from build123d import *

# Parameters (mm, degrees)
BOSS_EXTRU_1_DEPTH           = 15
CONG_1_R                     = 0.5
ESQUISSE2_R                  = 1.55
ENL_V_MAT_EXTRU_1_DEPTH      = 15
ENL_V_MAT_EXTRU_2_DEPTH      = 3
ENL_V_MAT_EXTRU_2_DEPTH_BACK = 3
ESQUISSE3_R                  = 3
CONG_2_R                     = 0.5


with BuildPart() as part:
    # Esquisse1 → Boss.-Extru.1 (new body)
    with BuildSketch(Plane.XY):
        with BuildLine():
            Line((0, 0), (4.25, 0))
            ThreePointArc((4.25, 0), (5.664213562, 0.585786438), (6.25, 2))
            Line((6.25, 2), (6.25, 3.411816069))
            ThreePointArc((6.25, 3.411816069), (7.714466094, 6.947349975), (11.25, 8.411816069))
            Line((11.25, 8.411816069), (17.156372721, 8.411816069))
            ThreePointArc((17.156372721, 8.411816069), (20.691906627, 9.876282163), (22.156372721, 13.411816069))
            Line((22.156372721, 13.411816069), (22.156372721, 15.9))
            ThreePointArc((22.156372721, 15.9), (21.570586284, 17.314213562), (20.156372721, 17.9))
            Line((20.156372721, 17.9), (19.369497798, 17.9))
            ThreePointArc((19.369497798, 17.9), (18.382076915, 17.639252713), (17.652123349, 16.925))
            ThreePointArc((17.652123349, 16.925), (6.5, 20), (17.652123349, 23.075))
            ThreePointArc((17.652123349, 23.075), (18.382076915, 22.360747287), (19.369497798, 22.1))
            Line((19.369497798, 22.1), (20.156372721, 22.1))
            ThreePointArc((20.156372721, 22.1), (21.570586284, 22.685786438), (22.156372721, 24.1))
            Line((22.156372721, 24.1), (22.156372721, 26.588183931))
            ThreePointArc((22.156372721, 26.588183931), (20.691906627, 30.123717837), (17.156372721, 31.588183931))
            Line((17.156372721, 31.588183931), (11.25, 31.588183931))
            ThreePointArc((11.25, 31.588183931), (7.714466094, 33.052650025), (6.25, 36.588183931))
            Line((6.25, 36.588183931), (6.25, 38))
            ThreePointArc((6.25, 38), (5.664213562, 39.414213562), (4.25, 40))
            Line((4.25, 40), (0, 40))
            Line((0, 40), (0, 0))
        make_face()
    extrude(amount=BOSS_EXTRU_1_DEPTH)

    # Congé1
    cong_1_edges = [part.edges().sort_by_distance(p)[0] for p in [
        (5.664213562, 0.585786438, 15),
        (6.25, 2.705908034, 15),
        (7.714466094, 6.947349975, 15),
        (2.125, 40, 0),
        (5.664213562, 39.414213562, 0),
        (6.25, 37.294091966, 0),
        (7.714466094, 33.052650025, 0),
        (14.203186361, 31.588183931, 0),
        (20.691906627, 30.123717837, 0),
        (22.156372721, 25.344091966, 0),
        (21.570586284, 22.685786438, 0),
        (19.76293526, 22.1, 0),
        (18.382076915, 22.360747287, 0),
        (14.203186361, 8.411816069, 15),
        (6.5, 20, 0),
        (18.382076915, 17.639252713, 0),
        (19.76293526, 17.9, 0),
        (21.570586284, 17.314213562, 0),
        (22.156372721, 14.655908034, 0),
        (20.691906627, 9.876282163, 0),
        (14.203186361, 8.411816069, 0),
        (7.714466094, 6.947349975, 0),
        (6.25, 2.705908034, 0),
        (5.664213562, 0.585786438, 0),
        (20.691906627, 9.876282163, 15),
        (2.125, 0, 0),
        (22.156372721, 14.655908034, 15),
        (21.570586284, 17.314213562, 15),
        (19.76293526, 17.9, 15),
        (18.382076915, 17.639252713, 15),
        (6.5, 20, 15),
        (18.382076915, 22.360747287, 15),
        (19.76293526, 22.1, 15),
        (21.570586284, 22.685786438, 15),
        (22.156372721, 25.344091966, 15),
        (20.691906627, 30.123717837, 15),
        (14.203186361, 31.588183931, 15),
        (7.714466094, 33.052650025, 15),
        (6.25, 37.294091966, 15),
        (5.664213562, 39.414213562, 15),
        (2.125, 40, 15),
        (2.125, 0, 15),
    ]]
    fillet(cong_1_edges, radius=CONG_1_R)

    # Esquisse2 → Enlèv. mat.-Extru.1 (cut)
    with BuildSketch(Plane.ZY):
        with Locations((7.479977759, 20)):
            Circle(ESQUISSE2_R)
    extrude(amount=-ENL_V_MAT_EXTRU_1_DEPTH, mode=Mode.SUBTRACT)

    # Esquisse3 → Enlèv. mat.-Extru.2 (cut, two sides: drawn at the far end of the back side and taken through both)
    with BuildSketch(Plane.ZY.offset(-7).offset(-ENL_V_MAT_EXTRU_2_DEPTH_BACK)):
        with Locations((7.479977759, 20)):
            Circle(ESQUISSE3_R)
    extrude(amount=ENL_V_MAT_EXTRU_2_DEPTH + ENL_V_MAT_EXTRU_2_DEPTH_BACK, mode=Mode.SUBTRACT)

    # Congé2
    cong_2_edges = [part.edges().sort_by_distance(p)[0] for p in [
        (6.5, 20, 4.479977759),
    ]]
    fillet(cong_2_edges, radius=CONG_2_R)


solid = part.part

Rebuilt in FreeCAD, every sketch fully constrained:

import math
import FreeCAD as App
import Part
import Sketcher
from FreeCAD import Vector
Q = App.Units.Quantity


def edges_at(feature, points):
    """Names of the edges that pass closest to the given points."""
    edges = feature.Shape.Edges
    near = lambda p: min(range(len(edges)), key=lambda i: edges[i].distToShape(Part.Vertex(*p))[0])
    return sorted({f"Edge{near(p) + 1}" for p in points})

doc = App.newDocument("Part")
params = doc.addObject("Spreadsheet::Sheet", "Params")
for row, (alias, value) in enumerate([
    ("sketch1_radius", "2 mm"),
    ("sketch1_radius2", "5 mm"),
    ("sketch1_radius3", "6 mm"),
    ("sketch1_height", "40 mm"),
    ("sketch1_width", "4.25 mm"),
    ("pad1_length", "15 mm"),
    ("fillet_radius", "0.5 mm"),
    ("sketch2_diameter", "3.1 mm"),
    ("pocket1_length", "15 mm"),
    ("sketch3_diameter", "6 mm"),
    ("pocket2_length", "3 mm"),
    ("pocket2_length2", "3 mm"),
    ("fillet2_radius", "0.5 mm"),
], start=1):
    params.set(f"A{row}", alias)
    params.set(f"B{row}", "=" + value)
    params.setAlias(f"B{row}", alias)

body = doc.addObject("PartDesign::Body", "Body")

sketch1 = body.newObject("Sketcher::SketchObject", "Sketch")
sketch1.AttachmentSupport = (doc.getObject("XY_Plane"), [""])
sketch1.MapMode = "FlatFace"
sketch1.addGeometry(Part.LineSegment(Vector(0, 0, 0), Vector(4.2, 0, 0)), False)
sketch1.addGeometry(Part.ArcOfCircle(Part.Circle(Vector(4.2, 2, 0), Vector(0, 0, 1), 2), math.radians(-90), math.radians(0)), False)
sketch1.addGeometry(Part.LineSegment(Vector(6.2, 2, 0), Vector(6.2, 3.4, 0)), False)
sketch1.addGeometry(Part.ArcOfCircle(Part.Circle(Vector(11.2, 3.4, 0), Vector(0, 0, 1), 5), math.radians(90), math.radians(180)), False)
sketch1.addGeometry(Part.LineSegment(Vector(11.2, 8.4, 0), Vector(17.2, 8.4, 0)), False)
sketch1.addGeometry(Part.ArcOfCircle(Part.Circle(Vector(17.2, 13.4, 0), Vector(0, 0, 1), 5), math.radians(-90), math.radians(0)), False)
sketch1.addGeometry(Part.LineSegment(Vector(22.2, 13.4, 0), Vector(22.2, 15.9, 0)), False)
sketch1.addGeometry(Part.ArcOfCircle(Part.Circle(Vector(20.2, 15.9, 0), Vector(0, 0, 1), 2), math.radians(0), math.radians(90)), False)
sketch1.addGeometry(Part.LineSegment(Vector(20.2, 17.9, 0), Vector(19.4, 17.9, 0)), False)
sketch1.addGeometry(Part.ArcOfCircle(Part.Circle(Vector(19.4, 15.9, 0), Vector(0, 0, 1), 2), math.radians(90), math.radians(149)), False)
sketch1.addGeometry(Part.ArcOfCircle(Part.Circle(Vector(12.5, 20, 0), Vector(0, 0, 1), 6), math.radians(31), math.radians(329)), False)
sketch1.addGeometry(Part.ArcOfCircle(Part.Circle(Vector(19.4, 24.1, 0), Vector(0, 0, 1), 2), math.radians(-149), math.radians(-90)), False)
sketch1.addGeometry(Part.LineSegment(Vector(19.4, 22.1, 0), Vector(20.2, 22.1, 0)), False)
sketch1.addGeometry(Part.ArcOfCircle(Part.Circle(Vector(20.2, 24.1, 0), Vector(0, 0, 1), 2), math.radians(-90), math.radians(0)), False)
sketch1.addGeometry(Part.LineSegment(Vector(22.2, 24.1, 0), Vector(22.2, 26.6, 0)), False)
sketch1.addGeometry(Part.ArcOfCircle(Part.Circle(Vector(17.2, 26.6, 0), Vector(0, 0, 1), 5), math.radians(0), math.radians(90)), False)
sketch1.addGeometry(Part.LineSegment(Vector(17.2, 31.6, 0), Vector(11.2, 31.6, 0)), False)
sketch1.addGeometry(Part.ArcOfCircle(Part.Circle(Vector(11.2, 36.6, 0), Vector(0, 0, 1), 5), math.radians(180), math.radians(270)), False)
sketch1.addGeometry(Part.LineSegment(Vector(6.2, 36.6, 0), Vector(6.2, 38, 0)), False)
sketch1.addGeometry(Part.ArcOfCircle(Part.Circle(Vector(4.2, 38, 0), Vector(0, 0, 1), 2), math.radians(0), math.radians(90)), False)
sketch1.addGeometry(Part.LineSegment(Vector(4.2, 40, 0), Vector(0, 40, 0)), False)
sketch1.addGeometry(Part.LineSegment(Vector(0, 40, 0), Vector(0, 0, 0)), False)
sketch1.addConstraint(Sketcher.Constraint("Tangent", 0, 2, 1, 1))
sketch1.addConstraint(Sketcher.Constraint("Tangent", 1, 2, 2, 1))
sketch1.addConstraint(Sketcher.Constraint("Tangent", 2, 2, 3, 2))
sketch1.addConstraint(Sketcher.Constraint("Tangent", 3, 1, 4, 1))
sketch1.addConstraint(Sketcher.Constraint("Tangent", 4, 2, 5, 1))
sketch1.addConstraint(Sketcher.Constraint("Tangent", 5, 2, 6, 1))
sketch1.addConstraint(Sketcher.Constraint("Tangent", 6, 2, 7, 1))
sketch1.addConstraint(Sketcher.Constraint("Tangent", 7, 2, 8, 1))
sketch1.addConstraint(Sketcher.Constraint("Tangent", 8, 2, 9, 1))
sketch1.addConstraint(Sketcher.Constraint("Tangent", 9, 2, 10, 2))
sketch1.addConstraint(Sketcher.Constraint("Tangent", 10, 1, 11, 1))
sketch1.addConstraint(Sketcher.Constraint("Tangent", 11, 2, 12, 1))
sketch1.addConstraint(Sketcher.Constraint("Tangent", 12, 2, 13, 1))
sketch1.addConstraint(Sketcher.Constraint("Tangent", 13, 2, 14, 1))
sketch1.addConstraint(Sketcher.Constraint("Tangent", 14, 2, 15, 1))
sketch1.addConstraint(Sketcher.Constraint("Tangent", 15, 2, 16, 1))
sketch1.addConstraint(Sketcher.Constraint("Tangent", 16, 2, 17, 2))
sketch1.addConstraint(Sketcher.Constraint("Tangent", 17, 1, 18, 1))
sketch1.addConstraint(Sketcher.Constraint("Tangent", 18, 2, 19, 1))
sketch1.addConstraint(Sketcher.Constraint("Tangent", 19, 2, 20, 1))
sketch1.addConstraint(Sketcher.Constraint("Coincident", 20, 2, 21, 1))
sketch1.addConstraint(Sketcher.Constraint("Coincident", 21, 2, 0, 1))
sketch1.addConstraint(Sketcher.Constraint("Horizontal", 0))
sketch1.addConstraint(Sketcher.Constraint("Vertical", 2))
sketch1.addConstraint(Sketcher.Constraint("Horizontal", 4))
sketch1.addConstraint(Sketcher.Constraint("Vertical", 6))
sketch1.addConstraint(Sketcher.Constraint("Horizontal", 8))
sketch1.addConstraint(Sketcher.Constraint("Horizontal", 12))
sketch1.addConstraint(Sketcher.Constraint("Vertical", 14))
sketch1.addConstraint(Sketcher.Constraint("Horizontal", 16))
sketch1.addConstraint(Sketcher.Constraint("Vertical", 18))
sketch1.addConstraint(Sketcher.Constraint("Horizontal", 20))
sketch1.addConstraint(Sketcher.Constraint("Vertical", 21))
sketch1.addConstraint(Sketcher.Constraint("Coincident", 21, 2, -1, 1))
sketch1.addConstraint(Sketcher.Constraint("Equal", 3, 5))
sketch1.addConstraint(Sketcher.Constraint("Equal", 1, 7))
sketch1.addConstraint(Sketcher.Constraint("Equal", 7, 9))
sketch1.addConstraint(Sketcher.Constraint("Equal", 9, 11))
sketch1.addConstraint(Sketcher.Constraint("Equal", 11, 13))
sketch1.addConstraint(Sketcher.Constraint("Equal", 5, 15))
sketch1.addConstraint(Sketcher.Constraint("Equal", 15, 17))
sketch1.addConstraint(Sketcher.Constraint("Equal", 13, 19))
sketch1.addConstraint(Sketcher.Constraint("Vertical", 9, 3, 11, 3))
sketch1.addConstraint(Sketcher.Constraint("Vertical", 7, 3, 13, 3))
sketch1.addConstraint(Sketcher.Constraint("Vertical", 3, 3, 17, 3))
sketch1.addConstraint(Sketcher.Constraint("Equal", 6, 14))
sketch1.addConstraint(Sketcher.Constraint("Equal", 2, 18))
sketch1.addConstraint(Sketcher.Constraint("Radius", 1, Q("2 mm")))
sketch1.addConstraint(Sketcher.Constraint("Radius", 3, Q("5 mm")))
sketch1.addConstraint(Sketcher.Constraint("Radius", 10, Q("6 mm")))
sketch1.addConstraint(Sketcher.Constraint("DistanceY", 21, 2, 21, 1, Q("40 mm")))
sketch1.addConstraint(Sketcher.Constraint("DistanceX", 0, 1, 0, 2, Q("4.25 mm")))
sketch1.addConstraint(Sketcher.Constraint("DistanceY", -1, 1, 7, 3, Q("15.9 mm")))
sketch1.addConstraint(Sketcher.Constraint("DistanceX", -1, 1, 10, 3, Q("12.5 mm")))
sketch1.addConstraint(Sketcher.Constraint("DistanceX", 4, 1, 4, 2, Q("5.906373 mm")))
sketch1.addConstraint(Sketcher.Constraint("DistanceY", 2, 1, 2, 2, Q("1.411816 mm")))
sketch1.setExpression("Constraints[47]", "Params.sketch1_radius")
sketch1.setExpression("Constraints[48]", "Params.sketch1_radius2")
sketch1.setExpression("Constraints[49]", "Params.sketch1_radius3")
sketch1.setExpression("Constraints[50]", "Params.sketch1_height")
sketch1.setExpression("Constraints[51]", "Params.sketch1_width")
pad1 = body.newObject("PartDesign::Pad", "Pad")
pad1.Profile = sketch1
pad1.setExpression("Length", "Params.pad1_length")
doc.recompute()

fillet = body.newObject("PartDesign::Fillet", "Fillet")
fillet.Base = (pad1, edges_at(pad1, [
    (5.664, 0.586, 15),
    (6.25, 2.706, 15),
    (7.714, 6.947, 15),
    (2.125, 40, 0),
    (5.664, 39.414, 0),
    (6.25, 37.294, 0),
    (7.714, 33.053, 0),
    (14.203, 31.588, 0),
    (20.692, 30.124, 0),
    (22.156, 25.344, 0),
    (21.571, 22.686, 0),
    (19.763, 22.1, 0),
    (18.382, 22.361, 0),
    (14.203, 8.412, 15),
    (6.5, 20, 0),
    (18.382, 17.639, 0),
    (19.763, 17.9, 0),
    (21.571, 17.314, 0),
    (22.156, 14.656, 0),
    (20.692, 9.876, 0),
    (14.203, 8.412, 0),
    (7.714, 6.947, 0),
    (6.25, 2.706, 0),
    (5.664, 0.586, 0),
    (20.692, 9.876, 15),
    (2.125, 0, 0),
    (22.156, 14.656, 15),
    (21.571, 17.314, 15),
    (19.763, 17.9, 15),
    (18.382, 17.639, 15),
    (6.5, 20, 15),
    (18.382, 22.361, 15),
    (19.763, 22.1, 15),
    (21.571, 22.686, 15),
    (22.156, 25.344, 15),
    (20.692, 30.124, 15),
    (14.203, 31.588, 15),
    (7.714, 33.053, 15),
    (6.25, 37.294, 15),
    (5.664, 39.414, 15),
    (2.125, 40, 15),
    (2.125, 0, 15),
]))
fillet.setExpression("Radius", "Params.fillet_radius")

sketch2 = body.newObject("Sketcher::SketchObject", "Sketch001")
sketch2.AttachmentSupport = (doc.getObject("YZ_Plane"), [""])
sketch2.MapMode = "FlatFace"
sketch2.addGeometry(Part.Circle(Vector(20, 7.5, 0), Vector(0, 0, 1), 1.6), False)
sketch2.addConstraint(Sketcher.Constraint("Diameter", 0, Q("3.1 mm")))
sketch2.addConstraint(Sketcher.Constraint("DistanceX", -1, 1, 0, 3, Q("20 mm")))
sketch2.addConstraint(Sketcher.Constraint("DistanceY", -1, 1, 0, 3, Q("7.479978 mm")))
sketch2.setExpression("Constraints[0]", "Params.sketch2_diameter")
pocket1 = body.newObject("PartDesign::Pocket", "Pocket")
pocket1.Profile = sketch2
pocket1.setExpression("Length", "Params.pocket1_length")
pocket1.Reversed = True

sketch3 = body.newObject("Sketcher::SketchObject", "Sketch002")
sketch3.AttachmentSupport = (doc.getObject("YZ_Plane"), [""])
sketch3.MapMode = "FlatFace"
sketch3.AttachmentOffset = App.Placement(Vector(0, 0, 7), App.Rotation())
sketch3.addGeometry(Part.Circle(Vector(20, 7.5, 0), Vector(0, 0, 1), 3), False)
sketch3.addConstraint(Sketcher.Constraint("Diameter", 0, Q("6 mm")))
sketch3.addConstraint(Sketcher.Constraint("DistanceX", -1, 1, 0, 3, Q("20 mm")))
sketch3.addConstraint(Sketcher.Constraint("DistanceY", -1, 1, 0, 3, Q("7.479978 mm")))
sketch3.setExpression("Constraints[0]", "Params.sketch3_diameter")
pocket2 = body.newObject("PartDesign::Pocket", "Pocket001")
pocket2.Profile = sketch3
pocket2.Type = "TwoLengths"
pocket2.setExpression("Length", "Params.pocket2_length")
pocket2.setExpression("Length2", "Params.pocket2_length2")
doc.recompute()

fillet2 = body.newObject("PartDesign::Fillet", "Fillet001")
fillet2.Base = (pocket2, edges_at(pocket2, [(6.5, 20, 4.48)]))
fillet2.setExpression("Radius", "Params.fillet2_radius")

doc.recompute()
